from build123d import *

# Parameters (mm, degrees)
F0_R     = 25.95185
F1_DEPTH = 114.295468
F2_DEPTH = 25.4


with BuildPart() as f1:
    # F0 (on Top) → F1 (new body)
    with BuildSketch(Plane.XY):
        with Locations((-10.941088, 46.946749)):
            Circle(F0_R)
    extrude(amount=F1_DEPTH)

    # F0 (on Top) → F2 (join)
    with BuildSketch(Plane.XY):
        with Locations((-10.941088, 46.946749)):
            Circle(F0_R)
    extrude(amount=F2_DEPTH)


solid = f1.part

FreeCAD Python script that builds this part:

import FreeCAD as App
import Part
import Sketcher
Q = App.Units.Quantity

doc = App.newDocument("Part")
body = doc.addObject("PartDesign::Body", "Body")

# Sketch on XY plane
sketch1 = body.newObject("Sketcher::SketchObject", "Sketch")
sketch1.AttachmentSupport = (doc.getObject("XY_Plane"), [""])
sketch1.MapMode = "FlatFace"
sketch1.addGeometry(Part.Circle(App.Vector(-11, 47, 0), App.Vector(0, 0, 1), 26), False)
sketch1.addConstraint(Sketcher.Constraint("Diameter", 0, 51.9037))
sketch1.addConstraint(Sketcher.Constraint("DistanceY", -1, 1, 0, 3, 46.946749))
sketch1.addConstraint(Sketcher.Constraint("DistanceX", 0, 3, -1, 1, 10.941088))
pad1 = body.newObject("PartDesign::Pad", "Pad")
pad1.Profile = sketch1
pad1.Length = 114.295468

# Sketch on XY plane
sketch2 = body.newObject("Sketcher::SketchObject", "Sketch001")
sketch2.AttachmentSupport = (doc.getObject("XY_Plane"), [""])
sketch2.MapMode = "FlatFace"
sketch2.addGeometry(Part.Circle(App.Vector(-11, 47, 0), App.Vector(0, 0, 1), 26), False)
sketch2.addConstraint(Sketcher.Constraint("Diameter", 0, 51.9037))
sketch2.addConstraint(Sketcher.Constraint("DistanceY", -1, 1, 0, 3, 46.946749))
sketch2.addConstraint(Sketcher.Constraint("DistanceX", 0, 3, -1, 1, 10.941088))
pad2 = body.newObject("PartDesign::Pad", "Pad001")
pad2.Profile = sketch2
pad2.Length = Q("1 in")

doc.recompute()
